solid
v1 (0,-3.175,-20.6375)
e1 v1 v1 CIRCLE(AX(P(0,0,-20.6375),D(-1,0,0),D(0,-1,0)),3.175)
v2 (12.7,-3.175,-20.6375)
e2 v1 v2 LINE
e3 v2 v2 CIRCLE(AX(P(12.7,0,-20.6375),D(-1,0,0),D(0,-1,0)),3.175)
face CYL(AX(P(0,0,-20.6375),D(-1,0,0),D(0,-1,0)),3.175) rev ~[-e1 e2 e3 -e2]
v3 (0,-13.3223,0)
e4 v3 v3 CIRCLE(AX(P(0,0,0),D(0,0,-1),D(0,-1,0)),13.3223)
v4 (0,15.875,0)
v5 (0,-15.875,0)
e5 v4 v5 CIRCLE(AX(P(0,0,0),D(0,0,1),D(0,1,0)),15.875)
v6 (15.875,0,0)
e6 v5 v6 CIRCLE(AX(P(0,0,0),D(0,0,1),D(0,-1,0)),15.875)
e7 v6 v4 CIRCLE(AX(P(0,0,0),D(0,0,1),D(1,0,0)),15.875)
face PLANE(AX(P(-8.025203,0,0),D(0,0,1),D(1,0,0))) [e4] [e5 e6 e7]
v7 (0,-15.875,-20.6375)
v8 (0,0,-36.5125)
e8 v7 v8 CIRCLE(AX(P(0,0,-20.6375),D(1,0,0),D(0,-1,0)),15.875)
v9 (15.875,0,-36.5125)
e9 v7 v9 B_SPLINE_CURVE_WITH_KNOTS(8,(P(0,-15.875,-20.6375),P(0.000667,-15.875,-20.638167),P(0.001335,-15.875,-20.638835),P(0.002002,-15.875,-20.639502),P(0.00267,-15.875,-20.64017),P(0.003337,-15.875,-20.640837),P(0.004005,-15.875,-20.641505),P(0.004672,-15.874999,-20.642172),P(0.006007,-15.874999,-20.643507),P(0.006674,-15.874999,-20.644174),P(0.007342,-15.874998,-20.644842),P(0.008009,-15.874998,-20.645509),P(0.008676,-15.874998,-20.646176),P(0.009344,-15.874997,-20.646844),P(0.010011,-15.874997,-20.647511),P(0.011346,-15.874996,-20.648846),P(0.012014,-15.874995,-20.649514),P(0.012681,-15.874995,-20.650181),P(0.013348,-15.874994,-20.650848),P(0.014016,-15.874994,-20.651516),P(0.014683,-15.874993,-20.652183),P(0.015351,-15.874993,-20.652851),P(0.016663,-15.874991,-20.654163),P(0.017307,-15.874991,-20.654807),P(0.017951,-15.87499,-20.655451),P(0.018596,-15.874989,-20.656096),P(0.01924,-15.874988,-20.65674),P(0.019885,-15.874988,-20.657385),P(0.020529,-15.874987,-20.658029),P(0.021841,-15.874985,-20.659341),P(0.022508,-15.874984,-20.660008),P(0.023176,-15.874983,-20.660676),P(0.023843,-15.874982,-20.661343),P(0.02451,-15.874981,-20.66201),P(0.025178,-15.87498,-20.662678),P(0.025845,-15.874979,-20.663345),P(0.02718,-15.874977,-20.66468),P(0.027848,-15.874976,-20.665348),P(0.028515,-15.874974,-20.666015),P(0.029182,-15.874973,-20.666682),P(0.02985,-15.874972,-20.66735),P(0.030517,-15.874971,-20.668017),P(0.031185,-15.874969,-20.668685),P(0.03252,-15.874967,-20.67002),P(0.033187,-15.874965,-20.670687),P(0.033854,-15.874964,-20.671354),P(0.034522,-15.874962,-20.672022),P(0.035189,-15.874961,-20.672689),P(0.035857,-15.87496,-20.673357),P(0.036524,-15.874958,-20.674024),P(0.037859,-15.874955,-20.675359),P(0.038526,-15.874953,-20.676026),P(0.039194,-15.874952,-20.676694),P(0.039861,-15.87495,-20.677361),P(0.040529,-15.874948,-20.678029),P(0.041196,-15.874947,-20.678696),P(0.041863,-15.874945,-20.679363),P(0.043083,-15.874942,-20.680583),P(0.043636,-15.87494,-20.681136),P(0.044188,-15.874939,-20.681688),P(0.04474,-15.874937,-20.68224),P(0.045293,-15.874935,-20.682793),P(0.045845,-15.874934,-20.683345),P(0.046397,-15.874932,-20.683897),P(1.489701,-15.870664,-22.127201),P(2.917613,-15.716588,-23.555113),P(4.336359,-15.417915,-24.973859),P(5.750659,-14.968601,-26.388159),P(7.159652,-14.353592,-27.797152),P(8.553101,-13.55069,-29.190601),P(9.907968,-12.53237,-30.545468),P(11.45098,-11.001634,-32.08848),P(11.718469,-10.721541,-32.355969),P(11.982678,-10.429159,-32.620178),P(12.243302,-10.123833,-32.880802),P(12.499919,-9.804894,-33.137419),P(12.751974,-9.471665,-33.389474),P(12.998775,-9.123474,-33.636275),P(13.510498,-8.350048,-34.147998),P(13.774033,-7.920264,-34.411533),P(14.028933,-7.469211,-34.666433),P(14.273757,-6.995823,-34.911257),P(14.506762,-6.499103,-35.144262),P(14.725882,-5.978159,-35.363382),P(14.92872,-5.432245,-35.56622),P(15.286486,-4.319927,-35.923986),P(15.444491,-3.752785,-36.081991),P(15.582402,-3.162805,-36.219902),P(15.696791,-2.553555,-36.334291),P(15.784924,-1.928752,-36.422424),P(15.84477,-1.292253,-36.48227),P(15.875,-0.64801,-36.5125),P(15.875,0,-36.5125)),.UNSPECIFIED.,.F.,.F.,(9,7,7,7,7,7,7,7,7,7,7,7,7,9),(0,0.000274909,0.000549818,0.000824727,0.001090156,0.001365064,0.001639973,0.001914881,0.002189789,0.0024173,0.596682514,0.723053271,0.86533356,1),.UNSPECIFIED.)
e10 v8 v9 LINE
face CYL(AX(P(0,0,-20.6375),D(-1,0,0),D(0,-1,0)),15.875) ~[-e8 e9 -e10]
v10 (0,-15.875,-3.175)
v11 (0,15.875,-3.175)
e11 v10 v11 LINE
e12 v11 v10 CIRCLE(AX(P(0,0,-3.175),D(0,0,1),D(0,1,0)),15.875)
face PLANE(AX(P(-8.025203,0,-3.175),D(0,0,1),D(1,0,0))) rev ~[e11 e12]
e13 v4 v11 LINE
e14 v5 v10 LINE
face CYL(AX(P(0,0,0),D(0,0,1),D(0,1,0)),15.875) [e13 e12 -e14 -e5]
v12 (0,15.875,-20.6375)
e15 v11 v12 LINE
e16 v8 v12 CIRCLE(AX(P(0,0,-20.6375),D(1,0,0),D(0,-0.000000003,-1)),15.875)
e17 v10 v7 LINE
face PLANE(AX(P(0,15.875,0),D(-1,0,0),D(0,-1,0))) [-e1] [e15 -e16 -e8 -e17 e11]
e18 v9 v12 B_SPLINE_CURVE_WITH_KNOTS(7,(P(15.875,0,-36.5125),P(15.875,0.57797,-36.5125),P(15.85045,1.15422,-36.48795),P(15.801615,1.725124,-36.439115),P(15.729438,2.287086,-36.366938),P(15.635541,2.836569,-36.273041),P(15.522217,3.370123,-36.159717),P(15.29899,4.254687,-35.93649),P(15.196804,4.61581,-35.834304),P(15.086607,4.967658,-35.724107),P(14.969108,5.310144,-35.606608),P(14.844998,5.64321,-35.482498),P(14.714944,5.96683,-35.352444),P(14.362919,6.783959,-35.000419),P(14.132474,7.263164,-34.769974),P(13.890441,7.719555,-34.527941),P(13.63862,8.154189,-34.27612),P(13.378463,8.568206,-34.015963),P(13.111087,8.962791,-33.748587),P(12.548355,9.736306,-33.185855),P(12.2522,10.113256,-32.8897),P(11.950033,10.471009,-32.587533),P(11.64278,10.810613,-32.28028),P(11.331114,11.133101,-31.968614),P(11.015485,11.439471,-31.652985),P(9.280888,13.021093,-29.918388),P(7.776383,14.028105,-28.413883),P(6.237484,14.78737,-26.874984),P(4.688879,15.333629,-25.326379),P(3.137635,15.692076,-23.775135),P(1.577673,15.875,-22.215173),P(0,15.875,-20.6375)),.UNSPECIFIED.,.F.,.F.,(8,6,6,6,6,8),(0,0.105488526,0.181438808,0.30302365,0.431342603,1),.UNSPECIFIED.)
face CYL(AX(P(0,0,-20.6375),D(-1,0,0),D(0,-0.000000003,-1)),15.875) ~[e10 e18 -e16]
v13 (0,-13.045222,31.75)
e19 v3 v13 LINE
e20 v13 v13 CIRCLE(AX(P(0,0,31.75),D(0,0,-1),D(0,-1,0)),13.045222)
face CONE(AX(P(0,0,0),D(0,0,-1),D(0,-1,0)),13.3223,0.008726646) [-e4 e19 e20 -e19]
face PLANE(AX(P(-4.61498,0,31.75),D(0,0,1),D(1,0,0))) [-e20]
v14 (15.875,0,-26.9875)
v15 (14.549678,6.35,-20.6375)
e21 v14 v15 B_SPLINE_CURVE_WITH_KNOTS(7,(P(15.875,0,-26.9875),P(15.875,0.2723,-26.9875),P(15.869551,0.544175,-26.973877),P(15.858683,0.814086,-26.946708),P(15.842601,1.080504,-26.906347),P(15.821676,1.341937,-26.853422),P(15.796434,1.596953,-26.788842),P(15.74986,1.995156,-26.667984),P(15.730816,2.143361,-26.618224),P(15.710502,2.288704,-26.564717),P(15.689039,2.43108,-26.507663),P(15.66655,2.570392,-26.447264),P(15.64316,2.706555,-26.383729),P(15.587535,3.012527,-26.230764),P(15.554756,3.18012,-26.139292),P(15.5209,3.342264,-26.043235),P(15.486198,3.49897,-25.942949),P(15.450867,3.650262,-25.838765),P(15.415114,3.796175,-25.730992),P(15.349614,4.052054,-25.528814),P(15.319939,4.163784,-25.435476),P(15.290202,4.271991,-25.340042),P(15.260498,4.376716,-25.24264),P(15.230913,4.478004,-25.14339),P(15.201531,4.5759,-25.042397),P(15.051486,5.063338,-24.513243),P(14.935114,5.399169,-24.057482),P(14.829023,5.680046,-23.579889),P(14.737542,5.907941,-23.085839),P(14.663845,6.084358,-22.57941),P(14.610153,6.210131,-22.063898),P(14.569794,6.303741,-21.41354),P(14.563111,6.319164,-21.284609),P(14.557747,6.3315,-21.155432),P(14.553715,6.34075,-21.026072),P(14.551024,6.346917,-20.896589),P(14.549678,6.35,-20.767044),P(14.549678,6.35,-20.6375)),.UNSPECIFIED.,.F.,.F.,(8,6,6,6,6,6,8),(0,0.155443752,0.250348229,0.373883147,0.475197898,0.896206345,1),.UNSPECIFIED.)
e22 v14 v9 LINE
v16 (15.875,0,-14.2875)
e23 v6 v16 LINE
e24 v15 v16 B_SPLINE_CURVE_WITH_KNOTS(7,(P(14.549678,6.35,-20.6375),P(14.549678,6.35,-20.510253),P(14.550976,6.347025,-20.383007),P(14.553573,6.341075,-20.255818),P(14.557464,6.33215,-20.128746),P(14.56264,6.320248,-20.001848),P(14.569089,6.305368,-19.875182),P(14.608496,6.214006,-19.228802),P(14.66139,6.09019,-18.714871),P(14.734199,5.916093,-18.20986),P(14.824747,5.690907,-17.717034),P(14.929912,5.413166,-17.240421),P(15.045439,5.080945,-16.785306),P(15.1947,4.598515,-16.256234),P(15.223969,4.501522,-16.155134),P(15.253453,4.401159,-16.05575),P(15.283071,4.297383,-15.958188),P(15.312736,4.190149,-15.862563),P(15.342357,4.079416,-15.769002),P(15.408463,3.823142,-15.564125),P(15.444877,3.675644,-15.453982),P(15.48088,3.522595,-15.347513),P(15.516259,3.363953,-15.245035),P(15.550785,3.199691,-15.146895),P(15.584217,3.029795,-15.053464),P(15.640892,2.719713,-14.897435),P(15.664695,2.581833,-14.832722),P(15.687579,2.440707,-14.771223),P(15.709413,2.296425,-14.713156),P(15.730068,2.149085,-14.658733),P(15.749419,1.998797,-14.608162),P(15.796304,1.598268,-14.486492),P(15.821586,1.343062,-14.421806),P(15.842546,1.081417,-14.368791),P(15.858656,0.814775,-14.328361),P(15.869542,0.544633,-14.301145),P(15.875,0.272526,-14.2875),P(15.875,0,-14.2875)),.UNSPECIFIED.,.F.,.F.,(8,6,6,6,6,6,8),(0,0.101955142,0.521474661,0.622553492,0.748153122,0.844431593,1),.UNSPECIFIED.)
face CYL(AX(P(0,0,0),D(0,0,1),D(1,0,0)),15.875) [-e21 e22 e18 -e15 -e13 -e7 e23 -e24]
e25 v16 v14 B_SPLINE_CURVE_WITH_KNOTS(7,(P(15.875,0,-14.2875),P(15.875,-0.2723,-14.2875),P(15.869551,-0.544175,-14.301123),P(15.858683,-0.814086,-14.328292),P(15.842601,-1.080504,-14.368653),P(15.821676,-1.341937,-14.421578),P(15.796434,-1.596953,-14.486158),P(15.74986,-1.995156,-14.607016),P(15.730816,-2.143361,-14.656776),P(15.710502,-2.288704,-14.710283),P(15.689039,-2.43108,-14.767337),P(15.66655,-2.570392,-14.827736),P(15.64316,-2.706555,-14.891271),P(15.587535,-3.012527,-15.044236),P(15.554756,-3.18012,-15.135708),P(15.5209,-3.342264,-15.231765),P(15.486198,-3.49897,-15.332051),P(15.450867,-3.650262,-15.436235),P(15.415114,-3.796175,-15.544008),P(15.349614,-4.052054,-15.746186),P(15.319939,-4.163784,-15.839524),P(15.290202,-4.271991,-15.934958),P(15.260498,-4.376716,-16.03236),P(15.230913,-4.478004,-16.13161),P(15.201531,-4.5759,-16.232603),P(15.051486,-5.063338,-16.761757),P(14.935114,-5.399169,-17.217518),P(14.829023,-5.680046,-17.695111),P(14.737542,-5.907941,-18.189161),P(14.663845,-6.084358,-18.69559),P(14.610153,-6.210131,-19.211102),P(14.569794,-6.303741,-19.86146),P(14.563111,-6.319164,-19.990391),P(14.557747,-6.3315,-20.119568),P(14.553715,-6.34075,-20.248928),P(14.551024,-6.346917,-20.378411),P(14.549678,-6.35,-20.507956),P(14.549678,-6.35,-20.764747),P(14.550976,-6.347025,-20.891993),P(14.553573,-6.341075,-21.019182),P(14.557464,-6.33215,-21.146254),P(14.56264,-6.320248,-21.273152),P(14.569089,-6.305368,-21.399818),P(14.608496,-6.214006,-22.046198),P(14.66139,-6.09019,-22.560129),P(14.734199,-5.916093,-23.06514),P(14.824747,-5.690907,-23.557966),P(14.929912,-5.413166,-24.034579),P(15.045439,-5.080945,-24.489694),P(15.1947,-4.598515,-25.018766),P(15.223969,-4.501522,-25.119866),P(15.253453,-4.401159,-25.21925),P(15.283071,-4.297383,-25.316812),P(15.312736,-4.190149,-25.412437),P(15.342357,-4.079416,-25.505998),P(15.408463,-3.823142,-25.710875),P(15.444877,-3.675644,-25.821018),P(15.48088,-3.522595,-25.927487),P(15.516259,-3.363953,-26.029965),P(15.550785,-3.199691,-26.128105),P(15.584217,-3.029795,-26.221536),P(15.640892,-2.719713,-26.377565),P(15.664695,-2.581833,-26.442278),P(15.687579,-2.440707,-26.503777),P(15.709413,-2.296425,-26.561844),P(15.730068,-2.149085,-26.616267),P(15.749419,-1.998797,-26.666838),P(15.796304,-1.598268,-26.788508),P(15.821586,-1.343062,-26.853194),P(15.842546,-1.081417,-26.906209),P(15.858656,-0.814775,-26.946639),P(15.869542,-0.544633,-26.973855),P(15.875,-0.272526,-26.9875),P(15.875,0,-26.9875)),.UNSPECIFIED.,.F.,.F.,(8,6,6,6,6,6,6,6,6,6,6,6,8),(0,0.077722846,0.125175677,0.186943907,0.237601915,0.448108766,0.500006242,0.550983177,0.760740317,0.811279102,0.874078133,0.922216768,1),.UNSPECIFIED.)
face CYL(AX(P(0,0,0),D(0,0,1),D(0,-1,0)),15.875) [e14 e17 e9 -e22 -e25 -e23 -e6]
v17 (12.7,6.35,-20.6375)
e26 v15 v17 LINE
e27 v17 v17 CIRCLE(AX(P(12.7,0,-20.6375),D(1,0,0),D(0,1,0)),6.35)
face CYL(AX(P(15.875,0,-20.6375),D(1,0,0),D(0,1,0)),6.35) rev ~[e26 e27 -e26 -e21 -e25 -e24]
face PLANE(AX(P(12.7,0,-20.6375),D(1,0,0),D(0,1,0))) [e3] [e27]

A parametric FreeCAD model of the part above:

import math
import FreeCAD as App
import Part
import Sketcher

V = App.Vector
Q = App.Units.Quantity

doc = App.newDocument("Part")
params = doc.addObject("Spreadsheet::Sheet", "Params")
for row, (alias, value) in enumerate([
    ("sketch1_diameter", "1.049 in"),
    ("pad1_length", "1.25 in"),
    ("pad1_taper", "-0.5 deg"),
    ("sketch2_radius", "0.625 in"),
    ("pad2_length", "1.4375 in"),
    ("sketch3_radius", "0.625 in"),
    ("pad3_length", "0.125 in"),
    ("sketch4_diameter", "0.25 in"),
    ("sketch4_radius", "0.625 in"),
    ("sketch5_diameter", "0.5 in"),
    ("pocket2_length", "0.125 in"),
], start=1):
    params.set(f"A{row}", alias)
    params.set(f"B{row}", "=" + value)
    params.setAlias(f"B{row}", alias)

body = doc.addObject("PartDesign::Body", "Body")

# Sketch on XY plane
sketch1 = doc.addObject("Sketcher::SketchObject", "Sketch")
body.addObject(sketch1)
sketch1.AttachmentSupport = (doc.XY_Plane, [""])
sketch1.MapMode = "FlatFace"
sketch1.addGeometry(Part.Circle(V(0, 0, 0), V(0, 0, 1), 13.3223), False)
sketch1.addConstraint(Sketcher.Constraint("Coincident", 0, 3, -1, 1))
sketch1.addConstraint(Sketcher.Constraint("Diameter", 0, Q("1.049 in")))
sketch1.setExpression("Constraints[1]", "Params.sketch1_diameter")
pad1 = doc.addObject("PartDesign::Pad", "Pad")
body.addObject(pad1)
pad1.Profile = sketch1
pad1.setExpression("Length", "Params.pad1_length")
pad1.setExpression("TaperAngle", "Params.pad1_taper")

# Sketch on XY plane
sketch2 = doc.addObject("Sketcher::SketchObject", "Sketch001")
body.addObject(sketch2)
sketch2.AttachmentSupport = (doc.XY_Plane, [""])
sketch2.MapMode = "FlatFace"
sketch2.addGeometry(Part.ArcOfCircle(Part.Circle(V(0, 0, 0), V(0, 0, 1), 15.875), math.radians(-90), math.radians(0)), False)
sketch2.addGeometry(Part.ArcOfCircle(Part.Circle(V(0, 0, 0), V(0, 0, 1), 15.875), math.radians(0), math.radians(90)), False)
sketch2.addGeometry(Part.LineSegment(V(0, 15.875, 0), V(0, -15.875, 0)), False)
sketch2.addConstraint(Sketcher.Constraint("Tangent", 0, 2, 1, 1))
sketch2.addConstraint(Sketcher.Constraint("Coincident", 1, 2, 2, 1))
sketch2.addConstraint(Sketcher.Constraint("Coincident", 2, 2, 0, 1))
sketch2.addConstraint(Sketcher.Constraint("Vertical", 2))
sketch2.addConstraint(Sketcher.Constraint("Coincident", 0, 3, -1, 1))
sketch2.addConstraint(Sketcher.Constraint("Equal", 0, 1))
sketch2.addConstraint(Sketcher.Constraint("PointOnObject", 0, 2, -1))
sketch2.addConstraint(Sketcher.Constraint("PointOnObject", 1, 2, -2))
sketch2.addConstraint(Sketcher.Constraint("Radius", 0, Q("0.625 in")))
sketch2.setExpression("Constraints[8]", "Params.sketch2_radius")
pad2 = doc.addObject("PartDesign::Pad", "Pad001")
body.addObject(pad2)
pad2.Profile = sketch2
pad2.setExpression("Length", "Params.pad2_length")
pad2.Reversed = True

# Sketch on XY plane
sketch3 = doc.addObject("Sketcher::SketchObject", "Sketch002")
body.addObject(sketch3)
sketch3.AttachmentSupport = (doc.XY_Plane, [""])
sketch3.MapMode = "FlatFace"
sketch3.addGeometry(Part.ArcOfCircle(Part.Circle(V(0, 0, 0), V(0, 0, 1), 15.875), math.radians(90), math.radians(270)), False)
sketch3.addGeometry(Part.LineSegment(V(0, -15.875, 0), V(0, 15.875, 0)), False)
sketch3.addConstraint(Sketcher.Constraint("Coincident", 0, 1, 1, 2))
sketch3.addConstraint(Sketcher.Constraint("Coincident", 1, 1, 0, 2))
sketch3.addConstraint(Sketcher.Constraint("Vertical", 1))
sketch3.addConstraint(Sketcher.Constraint("Coincident", 0, 3, -1, 1))
sketch3.addConstraint(Sketcher.Constraint("PointOnObject", 0, 1, -2))
sketch3.addConstraint(Sketcher.Constraint("Radius", 0, Q("0.625 in")))
sketch3.setExpression("Constraints[5]", "Params.sketch3_radius")
pad3 = doc.addObject("PartDesign::Pad", "Pad002")
body.addObject(pad3)
pad3.Profile = sketch3
pad3.setExpression("Length", "Params.pad3_length")
pad3.Reversed = True

# Sketch on YZ plane
sketch4 = doc.addObject("Sketcher::SketchObject", "Sketch003")
body.addObject(sketch4)
sketch4.AttachmentSupport = (doc.YZ_Plane, [""])
sketch4.MapMode = "FlatFace"
sketch4.addGeometry(Part.Circle(V(0, -20.6375, 0), V(0, 0, 1), 3.175), False)
sketch4.addGeometry(Part.ArcOfCircle(Part.Circle(V(0, -20.6375, 0), V(0, 0, 1), 15.875), math.radians(-90), math.radians(0)), False)
sketch4.addGeometry(Part.LineSegment(V(15.875, -20.6375, 0), V(15.875, -36.5125, 0)), False)
sketch4.addGeometry(Part.LineSegment(V(15.875, -36.5125, 0), V(0, -36.5125, 0)), False)
sketch4.addGeometry(Part.LineSegment(V(-15.875, -36.5125, 0), V(-15.875, -20.6375, 0)), False)
sketch4.addGeometry(Part.ArcOfCircle(Part.Circle(V(0, -20.6375, 0), V(0, 0, 1), 15.875), math.radians(180), math.radians(270)), False)
sketch4.addGeometry(Part.LineSegment(V(0, -36.5125, 0), V(-15.875, -36.5125, 0)), False)
sketch4.addConstraint(Sketcher.Constraint("Tangent", 1, 2, 2, 1))
sketch4.addConstraint(Sketcher.Constraint("Coincident", 2, 2, 3, 1))
sketch4.addConstraint(Sketcher.Constraint("Tangent", 3, 2, 1, 1))
sketch4.addConstraint(Sketcher.Constraint("Tangent", 4, 2, 5, 1))
sketch4.addConstraint(Sketcher.Constraint("Tangent", 5, 2, 6, 1))
sketch4.addConstraint(Sketcher.Constraint("Coincident", 6, 2, 4, 1))
sketch4.addConstraint(Sketcher.Constraint("Vertical", 2))
sketch4.addConstraint(Sketcher.Constraint("Horizontal", 3))
sketch4.addConstraint(Sketcher.Constraint("Vertical", 4))
sketch4.addConstraint(Sketcher.Constraint("Horizontal", 6))
sketch4.addConstraint(Sketcher.Constraint("Coincident", 1, 3, 0, 3))
sketch4.addConstraint(Sketcher.Constraint("Coincident", 5, 3, 0, 3))
sketch4.addConstraint(Sketcher.Constraint("Equal", 1, 5))
sketch4.addConstraint(Sketcher.Constraint("PointOnObject", 0, 3, -2))
sketch4.addConstraint(Sketcher.Constraint("Diameter", 0, Q("0.25 in")))
sketch4.addConstraint(Sketcher.Constraint("Radius", 1, Q("0.625 in")))
sketch4.addConstraint(Sketcher.Constraint("DistanceY", 0, 3, -1, 1, Q("0.8125 in")))
sketch4.setExpression("Constraints[14]", "Params.sketch4_diameter")
sketch4.setExpression("Constraints[15]", "Params.sketch4_radius")
pocket1 = doc.addObject("PartDesign::Pocket", "Pocket")
body.addObject(pocket1)
pocket1.Profile = sketch4
pocket1.Type = "ThroughAll"
pocket1.Reversed = True

# Sketch on YZ plane
sketch5 = doc.addObject("Sketcher::SketchObject", "Sketch004")
body.addObject(sketch5)
sketch5.AttachmentSupport = (doc.YZ_Plane, [""])
sketch5.MapMode = "FlatFace"
sketch5.AttachmentOffset = App.Placement(V(0, 0, 0.625 * 25.4), App.Rotation())
sketch5.addGeometry(Part.Circle(V(0, -20.6375, 0), V(0, 0, 1), 6.35), False)
sketch5.addConstraint(Sketcher.Constraint("PointOnObject", 0, 3, -2))
sketch5.addConstraint(Sketcher.Constraint("Diameter", 0, Q("0.5 in")))
sketch5.addConstraint(Sketcher.Constraint("DistanceY", 0, 3, -1, 1, Q("0.8125 in")))
sketch5.setExpression("Constraints[1]", "Params.sketch5_diameter")
pocket2 = doc.addObject("PartDesign::Pocket", "Pocket001")
body.addObject(pocket2)
pocket2.Profile = sketch5
pocket2.setExpression("Length", "Params.pocket2_length")

doc.recompute()
